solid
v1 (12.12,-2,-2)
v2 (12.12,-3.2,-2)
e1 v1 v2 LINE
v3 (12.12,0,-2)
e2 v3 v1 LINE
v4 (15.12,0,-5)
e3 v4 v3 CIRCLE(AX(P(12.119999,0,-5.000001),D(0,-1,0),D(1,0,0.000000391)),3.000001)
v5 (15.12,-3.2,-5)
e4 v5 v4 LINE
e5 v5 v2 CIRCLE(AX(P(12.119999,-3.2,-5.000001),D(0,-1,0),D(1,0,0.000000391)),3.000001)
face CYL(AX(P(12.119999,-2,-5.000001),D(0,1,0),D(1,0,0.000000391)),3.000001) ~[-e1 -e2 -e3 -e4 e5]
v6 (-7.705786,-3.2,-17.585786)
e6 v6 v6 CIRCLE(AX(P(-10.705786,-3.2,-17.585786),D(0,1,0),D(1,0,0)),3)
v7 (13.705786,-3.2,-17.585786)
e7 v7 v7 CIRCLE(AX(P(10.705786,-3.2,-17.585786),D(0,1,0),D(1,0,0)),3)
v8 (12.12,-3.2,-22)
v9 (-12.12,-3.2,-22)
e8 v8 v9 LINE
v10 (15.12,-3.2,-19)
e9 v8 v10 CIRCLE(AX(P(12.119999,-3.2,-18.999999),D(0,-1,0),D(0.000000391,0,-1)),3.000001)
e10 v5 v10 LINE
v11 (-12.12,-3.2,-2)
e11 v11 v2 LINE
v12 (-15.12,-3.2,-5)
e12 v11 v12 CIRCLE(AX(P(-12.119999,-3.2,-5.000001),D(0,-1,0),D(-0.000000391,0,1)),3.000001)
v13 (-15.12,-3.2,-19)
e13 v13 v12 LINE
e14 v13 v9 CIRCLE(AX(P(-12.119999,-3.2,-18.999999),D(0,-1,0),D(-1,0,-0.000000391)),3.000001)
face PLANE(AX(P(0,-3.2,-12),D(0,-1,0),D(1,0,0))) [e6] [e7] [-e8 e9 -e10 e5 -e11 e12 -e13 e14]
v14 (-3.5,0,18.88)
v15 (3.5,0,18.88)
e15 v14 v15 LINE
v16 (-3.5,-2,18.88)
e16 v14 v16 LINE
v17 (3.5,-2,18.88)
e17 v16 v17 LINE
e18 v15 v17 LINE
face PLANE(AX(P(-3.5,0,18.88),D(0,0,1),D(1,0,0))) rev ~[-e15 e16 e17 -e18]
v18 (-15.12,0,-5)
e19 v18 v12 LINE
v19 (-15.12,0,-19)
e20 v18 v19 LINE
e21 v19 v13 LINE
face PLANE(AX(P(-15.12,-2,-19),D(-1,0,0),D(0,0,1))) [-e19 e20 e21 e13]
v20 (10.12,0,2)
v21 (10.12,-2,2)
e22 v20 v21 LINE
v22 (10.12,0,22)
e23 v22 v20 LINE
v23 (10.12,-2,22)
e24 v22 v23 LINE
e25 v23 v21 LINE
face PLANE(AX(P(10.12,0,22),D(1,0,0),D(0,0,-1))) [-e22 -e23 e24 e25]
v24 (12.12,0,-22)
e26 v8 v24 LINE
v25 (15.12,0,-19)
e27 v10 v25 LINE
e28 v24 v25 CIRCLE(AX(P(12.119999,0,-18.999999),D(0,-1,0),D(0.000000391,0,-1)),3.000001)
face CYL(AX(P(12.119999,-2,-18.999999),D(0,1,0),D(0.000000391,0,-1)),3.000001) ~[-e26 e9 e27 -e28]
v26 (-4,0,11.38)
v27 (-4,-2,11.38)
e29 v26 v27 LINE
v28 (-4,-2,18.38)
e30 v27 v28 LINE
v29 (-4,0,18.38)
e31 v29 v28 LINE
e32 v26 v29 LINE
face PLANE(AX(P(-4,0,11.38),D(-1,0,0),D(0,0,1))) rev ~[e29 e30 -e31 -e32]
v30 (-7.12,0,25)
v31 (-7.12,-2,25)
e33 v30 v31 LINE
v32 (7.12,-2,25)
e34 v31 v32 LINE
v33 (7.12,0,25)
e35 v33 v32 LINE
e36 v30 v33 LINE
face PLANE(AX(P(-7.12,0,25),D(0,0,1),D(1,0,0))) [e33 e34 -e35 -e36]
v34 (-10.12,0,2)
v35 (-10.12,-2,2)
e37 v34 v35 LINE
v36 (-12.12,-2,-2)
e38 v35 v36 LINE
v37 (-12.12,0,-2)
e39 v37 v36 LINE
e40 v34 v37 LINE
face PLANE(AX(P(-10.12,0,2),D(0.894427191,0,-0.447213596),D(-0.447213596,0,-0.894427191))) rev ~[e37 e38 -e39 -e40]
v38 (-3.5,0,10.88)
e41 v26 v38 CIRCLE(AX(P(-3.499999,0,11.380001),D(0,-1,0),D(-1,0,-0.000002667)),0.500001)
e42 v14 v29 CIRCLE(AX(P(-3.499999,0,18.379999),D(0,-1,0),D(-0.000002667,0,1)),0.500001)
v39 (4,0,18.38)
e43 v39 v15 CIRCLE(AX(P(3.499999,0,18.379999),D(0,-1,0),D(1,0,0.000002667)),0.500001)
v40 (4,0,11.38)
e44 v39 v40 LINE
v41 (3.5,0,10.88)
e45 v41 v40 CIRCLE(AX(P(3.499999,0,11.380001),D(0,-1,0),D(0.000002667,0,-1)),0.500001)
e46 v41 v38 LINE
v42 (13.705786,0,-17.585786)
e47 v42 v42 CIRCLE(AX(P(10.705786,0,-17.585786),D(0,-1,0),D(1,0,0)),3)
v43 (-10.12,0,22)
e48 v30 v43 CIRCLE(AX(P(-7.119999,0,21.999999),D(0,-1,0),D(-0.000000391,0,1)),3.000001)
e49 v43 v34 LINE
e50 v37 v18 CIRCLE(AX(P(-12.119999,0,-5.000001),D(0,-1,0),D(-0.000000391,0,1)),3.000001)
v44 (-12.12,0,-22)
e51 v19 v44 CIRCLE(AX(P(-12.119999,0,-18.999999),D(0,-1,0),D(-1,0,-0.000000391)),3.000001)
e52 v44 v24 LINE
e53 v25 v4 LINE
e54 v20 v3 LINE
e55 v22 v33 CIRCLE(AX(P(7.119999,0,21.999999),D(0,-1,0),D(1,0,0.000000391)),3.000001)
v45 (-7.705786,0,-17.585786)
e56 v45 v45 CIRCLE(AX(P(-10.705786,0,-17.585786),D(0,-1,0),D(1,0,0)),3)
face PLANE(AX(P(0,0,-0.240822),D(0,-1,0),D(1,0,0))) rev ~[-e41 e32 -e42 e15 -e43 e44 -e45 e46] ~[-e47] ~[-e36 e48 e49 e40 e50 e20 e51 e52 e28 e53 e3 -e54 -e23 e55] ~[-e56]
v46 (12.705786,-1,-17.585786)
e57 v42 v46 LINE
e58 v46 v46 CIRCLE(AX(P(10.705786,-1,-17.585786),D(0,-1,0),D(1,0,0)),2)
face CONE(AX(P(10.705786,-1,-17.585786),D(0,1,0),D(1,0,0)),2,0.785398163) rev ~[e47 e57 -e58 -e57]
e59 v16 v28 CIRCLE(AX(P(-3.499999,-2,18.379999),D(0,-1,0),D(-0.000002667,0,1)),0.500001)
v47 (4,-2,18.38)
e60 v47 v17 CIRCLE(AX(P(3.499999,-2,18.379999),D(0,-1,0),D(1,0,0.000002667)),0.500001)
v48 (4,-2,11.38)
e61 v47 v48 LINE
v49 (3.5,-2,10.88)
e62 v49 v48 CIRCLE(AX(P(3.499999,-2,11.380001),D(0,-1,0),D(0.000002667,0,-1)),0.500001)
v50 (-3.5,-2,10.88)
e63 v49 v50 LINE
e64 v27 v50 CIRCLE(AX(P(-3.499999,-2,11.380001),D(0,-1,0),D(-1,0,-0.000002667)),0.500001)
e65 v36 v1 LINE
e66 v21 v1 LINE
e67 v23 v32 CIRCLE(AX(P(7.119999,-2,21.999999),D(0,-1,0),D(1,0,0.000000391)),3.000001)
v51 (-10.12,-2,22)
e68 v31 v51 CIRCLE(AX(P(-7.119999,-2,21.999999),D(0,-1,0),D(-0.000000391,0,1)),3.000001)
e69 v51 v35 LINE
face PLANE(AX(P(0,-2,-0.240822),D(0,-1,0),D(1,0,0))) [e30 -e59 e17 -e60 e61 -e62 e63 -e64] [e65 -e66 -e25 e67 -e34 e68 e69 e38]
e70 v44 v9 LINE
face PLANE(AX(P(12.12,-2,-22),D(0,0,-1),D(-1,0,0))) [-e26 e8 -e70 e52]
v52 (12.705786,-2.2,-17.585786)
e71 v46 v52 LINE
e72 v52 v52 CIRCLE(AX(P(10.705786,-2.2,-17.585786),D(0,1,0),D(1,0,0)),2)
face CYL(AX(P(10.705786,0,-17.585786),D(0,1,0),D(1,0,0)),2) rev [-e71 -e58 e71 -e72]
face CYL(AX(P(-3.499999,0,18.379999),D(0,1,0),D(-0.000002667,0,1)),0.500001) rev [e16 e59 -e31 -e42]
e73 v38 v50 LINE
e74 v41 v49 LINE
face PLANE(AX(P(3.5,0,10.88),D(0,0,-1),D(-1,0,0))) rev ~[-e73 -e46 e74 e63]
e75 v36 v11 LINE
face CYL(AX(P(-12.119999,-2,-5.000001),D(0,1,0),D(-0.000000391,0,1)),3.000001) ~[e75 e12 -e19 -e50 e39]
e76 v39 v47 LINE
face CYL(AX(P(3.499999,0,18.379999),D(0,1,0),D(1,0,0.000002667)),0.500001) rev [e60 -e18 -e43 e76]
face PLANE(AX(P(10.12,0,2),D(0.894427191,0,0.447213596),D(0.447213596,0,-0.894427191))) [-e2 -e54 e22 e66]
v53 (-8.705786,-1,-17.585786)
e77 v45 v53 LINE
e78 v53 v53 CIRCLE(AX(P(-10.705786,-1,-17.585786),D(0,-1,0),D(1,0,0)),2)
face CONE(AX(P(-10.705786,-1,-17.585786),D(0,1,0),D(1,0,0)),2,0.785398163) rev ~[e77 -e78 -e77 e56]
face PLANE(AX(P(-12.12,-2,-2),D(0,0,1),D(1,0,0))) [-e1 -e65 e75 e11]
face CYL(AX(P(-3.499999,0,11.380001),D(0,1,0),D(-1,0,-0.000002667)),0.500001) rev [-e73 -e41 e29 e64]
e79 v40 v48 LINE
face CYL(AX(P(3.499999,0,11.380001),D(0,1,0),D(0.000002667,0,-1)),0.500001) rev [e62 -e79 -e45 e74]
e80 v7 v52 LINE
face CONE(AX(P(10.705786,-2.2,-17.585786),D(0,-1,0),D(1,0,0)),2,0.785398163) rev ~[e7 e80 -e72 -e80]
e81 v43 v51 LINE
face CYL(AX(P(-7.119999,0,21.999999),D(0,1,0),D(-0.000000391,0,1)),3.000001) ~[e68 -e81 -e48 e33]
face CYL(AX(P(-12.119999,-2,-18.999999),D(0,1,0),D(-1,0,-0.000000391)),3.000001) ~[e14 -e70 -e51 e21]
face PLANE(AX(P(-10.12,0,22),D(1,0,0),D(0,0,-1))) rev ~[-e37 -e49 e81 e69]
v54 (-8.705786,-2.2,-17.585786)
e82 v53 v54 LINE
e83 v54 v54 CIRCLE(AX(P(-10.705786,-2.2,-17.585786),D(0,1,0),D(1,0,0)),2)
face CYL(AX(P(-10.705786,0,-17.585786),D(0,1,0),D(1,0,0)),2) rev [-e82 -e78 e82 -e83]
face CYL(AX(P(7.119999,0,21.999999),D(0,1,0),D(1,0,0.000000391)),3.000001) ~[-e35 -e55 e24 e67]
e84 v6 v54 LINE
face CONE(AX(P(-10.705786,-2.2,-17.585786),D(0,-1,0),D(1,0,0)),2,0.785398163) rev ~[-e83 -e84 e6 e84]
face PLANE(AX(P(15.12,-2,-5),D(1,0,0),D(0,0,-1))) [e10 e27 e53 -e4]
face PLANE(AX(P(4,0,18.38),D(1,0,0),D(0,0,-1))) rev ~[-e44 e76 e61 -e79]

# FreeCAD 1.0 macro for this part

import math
import FreeCAD as App
import Part
import Sketcher

V = App.Vector


def edges_at(feature, points):
    """Names of the edges that pass closest to the given points."""
    edges = feature.Shape.Edges
    near = lambda p: min(range(len(edges)), key=lambda i: edges[i].distToShape(Part.Vertex(*p))[0])
    return sorted({f"Edge{near(p) + 1}" for p in points})

doc = App.newDocument("Part")
body = doc.addObject("PartDesign::Body", "Body")

sketch1 = body.newObject("Sketcher::SketchObject", "Sketch")
sketch1.AttachmentSupport = (doc.getObject("XZ_Plane"), [""])
sketch1.MapMode = "FlatFace"
sketch1.addGeometry([
    Part.ArcOfCircle(Part.Circle(V(-7.119999, 21.999999, 0), V(0, 0, 1), 3.000001), math.radians(90.000022), math.radians(179.999978)),
    Part.LineSegment(V(-10.12, 22, 0), V(-10.12, 2, 0)),
    Part.LineSegment(V(-10.12, 2, 0), V(-12.12, -2, 0)),
    Part.ArcOfCircle(Part.Circle(V(-12.119999, -5.000001, 0), V(0, 0, 1), 3.000001), math.radians(90.000022), math.radians(179.999978)),
    Part.LineSegment(V(-15.12, -5, 0), V(-15.12, -19, 0)),
    Part.ArcOfCircle(Part.Circle(V(-12.119999, -18.999999, 0), V(0, 0, 1), 3.000001), math.radians(-179.999978), math.radians(-90.000022)),
    Part.LineSegment(V(-12.12, -22, 0), V(12.12, -22, 0)),
    Part.ArcOfCircle(Part.Circle(V(12.119999, -18.999999, 0), V(0, 0, 1), 3.000001), math.radians(-89.999978), math.radians(-0.000022)),
    Part.LineSegment(V(15.12, -19, 0), V(15.12, -5, 0)),
    Part.ArcOfCircle(Part.Circle(V(12.119999, -5.000001, 0), V(0, 0, 1), 3.000001), math.radians(0.000022), math.radians(89.999978)),
    Part.LineSegment(V(12.12, -2, 0), V(10.12, 2, 0)),
    Part.LineSegment(V(10.12, 2, 0), V(10.12, 22, 0)),
    Part.ArcOfCircle(Part.Circle(V(7.119999, 21.999999, 0), V(0, 0, 1), 3.000001), math.radians(0.000022), math.radians(89.999978)),
    Part.LineSegment(V(7.12, 25, 0), V(-7.12, 25, 0)),
    Part.ArcOfCircle(Part.Circle(V(-3.499999, 18.379999, 0), V(0, 0, 1), 0.500001), math.radians(90.000153), math.radians(179.999847)),
    Part.LineSegment(V(-3.5, 18.88, 0), V(3.5, 18.88, 0)),
    Part.ArcOfCircle(Part.Circle(V(3.499999, 18.379999, 0), V(0, 0, 1), 0.500001), math.radians(0.000153), math.radians(89.999847)),
    Part.LineSegment(V(4, 18.38, 0), V(4, 11.38, 0)),
    Part.ArcOfCircle(Part.Circle(V(3.499999, 11.380001, 0), V(0, 0, 1), 0.500001), math.radians(-89.999847), math.radians(-0.000153)),
    Part.LineSegment(V(3.5, 10.88, 0), V(-3.5, 10.88, 0)),
    Part.ArcOfCircle(Part.Circle(V(-3.499999, 11.380001, 0), V(0, 0, 1), 0.500001), math.radians(-179.999847), math.radians(-90.000153)),
    Part.LineSegment(V(-4, 11.38, 0), V(-4, 18.38, 0)),
], False)
sketch1.addConstraint([
    Sketcher.Constraint("Tangent", 0, 2, 1, 1),
    Sketcher.Constraint("Coincident", 1, 2, 2, 1),
    Sketcher.Constraint("Coincident", 2, 2, 3, 1),
    Sketcher.Constraint("Tangent", 3, 2, 4, 1),
    Sketcher.Constraint("Tangent", 4, 2, 5, 1),
    Sketcher.Constraint("Tangent", 5, 2, 6, 1),
    Sketcher.Constraint("Tangent", 6, 2, 7, 1),
    Sketcher.Constraint("Tangent", 7, 2, 8, 1),
    Sketcher.Constraint("Tangent", 8, 2, 9, 1),
    Sketcher.Constraint("Coincident", 9, 2, 10, 1),
    Sketcher.Constraint("Coincident", 10, 2, 11, 1),
    Sketcher.Constraint("Tangent", 11, 2, 12, 1),
    Sketcher.Constraint("Tangent", 12, 2, 13, 1),
    Sketcher.Constraint("Tangent", 13, 2, 0, 1),
    Sketcher.Constraint("Coincident", 14, 1, 15, 1),
    Sketcher.Constraint("Coincident", 15, 2, 16, 2),
    Sketcher.Constraint("Coincident", 16, 1, 17, 1),
    Sketcher.Constraint("Coincident", 17, 2, 18, 2),
    Sketcher.Constraint("Coincident", 18, 1, 19, 1),
    Sketcher.Constraint("Coincident", 19, 2, 20, 2),
    Sketcher.Constraint("Coincident", 20, 1, 21, 1),
    Sketcher.Constraint("Coincident", 21, 2, 14, 2),
    Sketcher.Constraint("Vertical", 1),
    Sketcher.Constraint("Vertical", 4),
    Sketcher.Constraint("Horizontal", 6),
    Sketcher.Constraint("Vertical", 8),
    Sketcher.Constraint("Vertical", 11),
    Sketcher.Constraint("Horizontal", 13),
    Sketcher.Constraint("Horizontal", 15),
    Sketcher.Constraint("Vertical", 17),
    Sketcher.Constraint("Horizontal", 19),
    Sketcher.Constraint("Vertical", 21),
    Sketcher.Constraint("Equal", 0, 3),
    Sketcher.Constraint("Equal", 3, 5),
    Sketcher.Constraint("Equal", 5, 7),
    Sketcher.Constraint("Equal", 7, 9),
    Sketcher.Constraint("Equal", 9, 12),
    Sketcher.Constraint("Equal", 14, 16),
    Sketcher.Constraint("Equal", 16, 18),
    Sketcher.Constraint("Equal", 18, 20),
    Sketcher.Constraint("Symmetric", 3, 3, 9, 3, -2),
    Sketcher.Constraint("Symmetric", 1, 2, 10, 2, -2),
    Sketcher.Constraint("Symmetric", 17, 2, 20, 1, -2),
    Sketcher.Constraint("Horizontal", 14, 3, 16, 1),
    Sketcher.Constraint("Horizontal", 20, 3, 17, 2),
    Sketcher.Constraint("Horizontal", 16, 1, 21, 2),
    Sketcher.Constraint("Vertical", 5, 3, 2, 2),
    Sketcher.Constraint("Vertical", 6, 2, 9, 2),
    Sketcher.Constraint("Vertical", 20, 3, 14, 1),
    Sketcher.Constraint("Vertical", 18, 3, 15, 2),
    Sketcher.Constraint("Vertical", 15, 2, 18, 1),
    Sketcher.Constraint("Vertical", 14, 1, 19, 2),
    Sketcher.Constraint("Equal", 19, 17),
    Sketcher.Constraint("Radius", 0, 3.000001),
    Sketcher.Constraint("Radius", 14, 0.500001),
    Sketcher.Constraint("DistanceX", 15, 1, 15, 2, 7.0),
    Sketcher.Constraint("DistanceY", 1, 2, 1, 1, 20.0),
    Sketcher.Constraint("DistanceY", 4, 2, 4, 1, 14.0),
    Sketcher.Constraint("DistanceY", -1, 1, 0, 3, 21.999999),
    Sketcher.Constraint("DistanceY", 3, 3, -1, 1, 5.000001),
    Sketcher.Constraint("DistanceX", 3, 3, 0, 3, 5.0),
    Sketcher.Constraint("DistanceX", 6, 1, 6, 2, 24.24),
    Sketcher.Constraint("DistanceY", -1, 1, 14, 3, 18.379999),
])
pad1 = body.newObject("PartDesign::Pad", "Pad")
pad1.Profile = sketch1
pad1.Length = 2

sketch2 = body.newObject("Sketcher::SketchObject", "Sketch001")
sketch2.AttachmentSupport = (doc.getObject("XZ_Plane"), [""])
sketch2.MapMode = "FlatFace"
sketch2.AttachmentOffset = App.Placement(V(0, 0, 2), App.Rotation())
sketch2.addGeometry([
    Part.ArcOfCircle(Part.Circle(V(12.119999, -5.000001, 0), V(0, 0, 1), 3.000001), math.radians(0.000022), math.radians(89.999978)),
    Part.LineSegment(V(12.12, -2, 0), V(-12.12, -2, 0)),
    Part.ArcOfCircle(Part.Circle(V(-12.119999, -5.000001, 0), V(0, 0, 1), 3.000001), math.radians(90.000022), math.radians(179.999978)),
    Part.LineSegment(V(-15.12, -5, 0), V(-15.12, -19, 0)),
    Part.ArcOfCircle(Part.Circle(V(-12.119999, -18.999999, 0), V(0, 0, 1), 3.000001), math.radians(-179.999978), math.radians(-90.000022)),
    Part.LineSegment(V(-12.12, -22, 0), V(12.12, -22, 0)),
    Part.ArcOfCircle(Part.Circle(V(12.119999, -18.999999, 0), V(0, 0, 1), 3.000001), math.radians(-89.999978), math.radians(-0.000022)),
    Part.LineSegment(V(15.12, -19, 0), V(15.12, -5, 0)),
], False)
sketch2.addConstraint([
    Sketcher.Constraint("Tangent", 0, 2, 1, 1),
    Sketcher.Constraint("Tangent", 1, 2, 2, 1),
    Sketcher.Constraint("Tangent", 2, 2, 3, 1),
    Sketcher.Constraint("Tangent", 3, 2, 4, 1),
    Sketcher.Constraint("Tangent", 4, 2, 5, 1),
    Sketcher.Constraint("Tangent", 5, 2, 6, 1),
    Sketcher.Constraint("Tangent", 6, 2, 7, 1),
    Sketcher.Constraint("Tangent", 7, 2, 0, 1),
    Sketcher.Constraint("Horizontal", 1),
    Sketcher.Constraint("Vertical", 3),
    Sketcher.Constraint("Horizontal", 5),
    Sketcher.Constraint("Vertical", 7),
    Sketcher.Constraint("Equal", 0, 2),
    Sketcher.Constraint("Equal", 2, 4),
    Sketcher.Constraint("Equal", 4, 6),
    Sketcher.Constraint("Radius", 0, 3.000001),
    Sketcher.Constraint("DistanceY", 3, 2, 3, 1, 14.0),
    Sketcher.Constraint("DistanceY", 0, 3, -1, 1, 5.000001),
    Sketcher.Constraint("DistanceX", 1, 2, 1, 1, 24.24),
    Sketcher.Constraint("DistanceX", -1, 1, 0, 3, 12.119999),
])
pad2 = body.newObject("PartDesign::Pad", "Pad001")
pad2.Profile = sketch2
pad2.Length = 1.2

sketch3 = body.newObject("Sketcher::SketchObject", "Sketch002")
sketch3.AttachmentSupport = (doc.getObject("XZ_Plane"), [""])
sketch3.MapMode = "FlatFace"
sketch3.addGeometry([
    Part.Circle(V(-10.705786, -17.585786, 0), V(0, 0, 1), 2),
    Part.Circle(V(10.705786, -17.585786, 0), V(0, 0, 1), 2),
], False)
sketch3.addConstraint([
    Sketcher.Constraint("Equal", 0, 1),
    Sketcher.Constraint("Symmetric", 0, 3, 1, 3, -2),
    Sketcher.Constraint("Diameter", 0, 4.0),
    Sketcher.Constraint("DistanceX", 0, 3, 1, 3, 21.411572),
    Sketcher.Constraint("DistanceY", 0, 3, -1, 1, 17.585786),
])
pocket1 = body.newObject("PartDesign::Pocket", "Pocket")
pocket1.Profile = sketch3
pocket1.Type = "ThroughAll"
pocket1.Reversed = True
doc.recompute()

chamfer = body.newObject("PartDesign::Chamfer", "Chamfer")
chamfer.Base = (pocket1, edges_at(pocket1, [
    (-12.706, 0, -17.586),
    (-8.706, -1.6, -17.586),
    (-12.706, -3.2, -17.586),
    (8.706, 0, -17.586),
    (12.706, -1.6, -17.586),
    (8.706, -3.2, -17.586),
]))
chamfer.Size = 1

doc.recompute()
